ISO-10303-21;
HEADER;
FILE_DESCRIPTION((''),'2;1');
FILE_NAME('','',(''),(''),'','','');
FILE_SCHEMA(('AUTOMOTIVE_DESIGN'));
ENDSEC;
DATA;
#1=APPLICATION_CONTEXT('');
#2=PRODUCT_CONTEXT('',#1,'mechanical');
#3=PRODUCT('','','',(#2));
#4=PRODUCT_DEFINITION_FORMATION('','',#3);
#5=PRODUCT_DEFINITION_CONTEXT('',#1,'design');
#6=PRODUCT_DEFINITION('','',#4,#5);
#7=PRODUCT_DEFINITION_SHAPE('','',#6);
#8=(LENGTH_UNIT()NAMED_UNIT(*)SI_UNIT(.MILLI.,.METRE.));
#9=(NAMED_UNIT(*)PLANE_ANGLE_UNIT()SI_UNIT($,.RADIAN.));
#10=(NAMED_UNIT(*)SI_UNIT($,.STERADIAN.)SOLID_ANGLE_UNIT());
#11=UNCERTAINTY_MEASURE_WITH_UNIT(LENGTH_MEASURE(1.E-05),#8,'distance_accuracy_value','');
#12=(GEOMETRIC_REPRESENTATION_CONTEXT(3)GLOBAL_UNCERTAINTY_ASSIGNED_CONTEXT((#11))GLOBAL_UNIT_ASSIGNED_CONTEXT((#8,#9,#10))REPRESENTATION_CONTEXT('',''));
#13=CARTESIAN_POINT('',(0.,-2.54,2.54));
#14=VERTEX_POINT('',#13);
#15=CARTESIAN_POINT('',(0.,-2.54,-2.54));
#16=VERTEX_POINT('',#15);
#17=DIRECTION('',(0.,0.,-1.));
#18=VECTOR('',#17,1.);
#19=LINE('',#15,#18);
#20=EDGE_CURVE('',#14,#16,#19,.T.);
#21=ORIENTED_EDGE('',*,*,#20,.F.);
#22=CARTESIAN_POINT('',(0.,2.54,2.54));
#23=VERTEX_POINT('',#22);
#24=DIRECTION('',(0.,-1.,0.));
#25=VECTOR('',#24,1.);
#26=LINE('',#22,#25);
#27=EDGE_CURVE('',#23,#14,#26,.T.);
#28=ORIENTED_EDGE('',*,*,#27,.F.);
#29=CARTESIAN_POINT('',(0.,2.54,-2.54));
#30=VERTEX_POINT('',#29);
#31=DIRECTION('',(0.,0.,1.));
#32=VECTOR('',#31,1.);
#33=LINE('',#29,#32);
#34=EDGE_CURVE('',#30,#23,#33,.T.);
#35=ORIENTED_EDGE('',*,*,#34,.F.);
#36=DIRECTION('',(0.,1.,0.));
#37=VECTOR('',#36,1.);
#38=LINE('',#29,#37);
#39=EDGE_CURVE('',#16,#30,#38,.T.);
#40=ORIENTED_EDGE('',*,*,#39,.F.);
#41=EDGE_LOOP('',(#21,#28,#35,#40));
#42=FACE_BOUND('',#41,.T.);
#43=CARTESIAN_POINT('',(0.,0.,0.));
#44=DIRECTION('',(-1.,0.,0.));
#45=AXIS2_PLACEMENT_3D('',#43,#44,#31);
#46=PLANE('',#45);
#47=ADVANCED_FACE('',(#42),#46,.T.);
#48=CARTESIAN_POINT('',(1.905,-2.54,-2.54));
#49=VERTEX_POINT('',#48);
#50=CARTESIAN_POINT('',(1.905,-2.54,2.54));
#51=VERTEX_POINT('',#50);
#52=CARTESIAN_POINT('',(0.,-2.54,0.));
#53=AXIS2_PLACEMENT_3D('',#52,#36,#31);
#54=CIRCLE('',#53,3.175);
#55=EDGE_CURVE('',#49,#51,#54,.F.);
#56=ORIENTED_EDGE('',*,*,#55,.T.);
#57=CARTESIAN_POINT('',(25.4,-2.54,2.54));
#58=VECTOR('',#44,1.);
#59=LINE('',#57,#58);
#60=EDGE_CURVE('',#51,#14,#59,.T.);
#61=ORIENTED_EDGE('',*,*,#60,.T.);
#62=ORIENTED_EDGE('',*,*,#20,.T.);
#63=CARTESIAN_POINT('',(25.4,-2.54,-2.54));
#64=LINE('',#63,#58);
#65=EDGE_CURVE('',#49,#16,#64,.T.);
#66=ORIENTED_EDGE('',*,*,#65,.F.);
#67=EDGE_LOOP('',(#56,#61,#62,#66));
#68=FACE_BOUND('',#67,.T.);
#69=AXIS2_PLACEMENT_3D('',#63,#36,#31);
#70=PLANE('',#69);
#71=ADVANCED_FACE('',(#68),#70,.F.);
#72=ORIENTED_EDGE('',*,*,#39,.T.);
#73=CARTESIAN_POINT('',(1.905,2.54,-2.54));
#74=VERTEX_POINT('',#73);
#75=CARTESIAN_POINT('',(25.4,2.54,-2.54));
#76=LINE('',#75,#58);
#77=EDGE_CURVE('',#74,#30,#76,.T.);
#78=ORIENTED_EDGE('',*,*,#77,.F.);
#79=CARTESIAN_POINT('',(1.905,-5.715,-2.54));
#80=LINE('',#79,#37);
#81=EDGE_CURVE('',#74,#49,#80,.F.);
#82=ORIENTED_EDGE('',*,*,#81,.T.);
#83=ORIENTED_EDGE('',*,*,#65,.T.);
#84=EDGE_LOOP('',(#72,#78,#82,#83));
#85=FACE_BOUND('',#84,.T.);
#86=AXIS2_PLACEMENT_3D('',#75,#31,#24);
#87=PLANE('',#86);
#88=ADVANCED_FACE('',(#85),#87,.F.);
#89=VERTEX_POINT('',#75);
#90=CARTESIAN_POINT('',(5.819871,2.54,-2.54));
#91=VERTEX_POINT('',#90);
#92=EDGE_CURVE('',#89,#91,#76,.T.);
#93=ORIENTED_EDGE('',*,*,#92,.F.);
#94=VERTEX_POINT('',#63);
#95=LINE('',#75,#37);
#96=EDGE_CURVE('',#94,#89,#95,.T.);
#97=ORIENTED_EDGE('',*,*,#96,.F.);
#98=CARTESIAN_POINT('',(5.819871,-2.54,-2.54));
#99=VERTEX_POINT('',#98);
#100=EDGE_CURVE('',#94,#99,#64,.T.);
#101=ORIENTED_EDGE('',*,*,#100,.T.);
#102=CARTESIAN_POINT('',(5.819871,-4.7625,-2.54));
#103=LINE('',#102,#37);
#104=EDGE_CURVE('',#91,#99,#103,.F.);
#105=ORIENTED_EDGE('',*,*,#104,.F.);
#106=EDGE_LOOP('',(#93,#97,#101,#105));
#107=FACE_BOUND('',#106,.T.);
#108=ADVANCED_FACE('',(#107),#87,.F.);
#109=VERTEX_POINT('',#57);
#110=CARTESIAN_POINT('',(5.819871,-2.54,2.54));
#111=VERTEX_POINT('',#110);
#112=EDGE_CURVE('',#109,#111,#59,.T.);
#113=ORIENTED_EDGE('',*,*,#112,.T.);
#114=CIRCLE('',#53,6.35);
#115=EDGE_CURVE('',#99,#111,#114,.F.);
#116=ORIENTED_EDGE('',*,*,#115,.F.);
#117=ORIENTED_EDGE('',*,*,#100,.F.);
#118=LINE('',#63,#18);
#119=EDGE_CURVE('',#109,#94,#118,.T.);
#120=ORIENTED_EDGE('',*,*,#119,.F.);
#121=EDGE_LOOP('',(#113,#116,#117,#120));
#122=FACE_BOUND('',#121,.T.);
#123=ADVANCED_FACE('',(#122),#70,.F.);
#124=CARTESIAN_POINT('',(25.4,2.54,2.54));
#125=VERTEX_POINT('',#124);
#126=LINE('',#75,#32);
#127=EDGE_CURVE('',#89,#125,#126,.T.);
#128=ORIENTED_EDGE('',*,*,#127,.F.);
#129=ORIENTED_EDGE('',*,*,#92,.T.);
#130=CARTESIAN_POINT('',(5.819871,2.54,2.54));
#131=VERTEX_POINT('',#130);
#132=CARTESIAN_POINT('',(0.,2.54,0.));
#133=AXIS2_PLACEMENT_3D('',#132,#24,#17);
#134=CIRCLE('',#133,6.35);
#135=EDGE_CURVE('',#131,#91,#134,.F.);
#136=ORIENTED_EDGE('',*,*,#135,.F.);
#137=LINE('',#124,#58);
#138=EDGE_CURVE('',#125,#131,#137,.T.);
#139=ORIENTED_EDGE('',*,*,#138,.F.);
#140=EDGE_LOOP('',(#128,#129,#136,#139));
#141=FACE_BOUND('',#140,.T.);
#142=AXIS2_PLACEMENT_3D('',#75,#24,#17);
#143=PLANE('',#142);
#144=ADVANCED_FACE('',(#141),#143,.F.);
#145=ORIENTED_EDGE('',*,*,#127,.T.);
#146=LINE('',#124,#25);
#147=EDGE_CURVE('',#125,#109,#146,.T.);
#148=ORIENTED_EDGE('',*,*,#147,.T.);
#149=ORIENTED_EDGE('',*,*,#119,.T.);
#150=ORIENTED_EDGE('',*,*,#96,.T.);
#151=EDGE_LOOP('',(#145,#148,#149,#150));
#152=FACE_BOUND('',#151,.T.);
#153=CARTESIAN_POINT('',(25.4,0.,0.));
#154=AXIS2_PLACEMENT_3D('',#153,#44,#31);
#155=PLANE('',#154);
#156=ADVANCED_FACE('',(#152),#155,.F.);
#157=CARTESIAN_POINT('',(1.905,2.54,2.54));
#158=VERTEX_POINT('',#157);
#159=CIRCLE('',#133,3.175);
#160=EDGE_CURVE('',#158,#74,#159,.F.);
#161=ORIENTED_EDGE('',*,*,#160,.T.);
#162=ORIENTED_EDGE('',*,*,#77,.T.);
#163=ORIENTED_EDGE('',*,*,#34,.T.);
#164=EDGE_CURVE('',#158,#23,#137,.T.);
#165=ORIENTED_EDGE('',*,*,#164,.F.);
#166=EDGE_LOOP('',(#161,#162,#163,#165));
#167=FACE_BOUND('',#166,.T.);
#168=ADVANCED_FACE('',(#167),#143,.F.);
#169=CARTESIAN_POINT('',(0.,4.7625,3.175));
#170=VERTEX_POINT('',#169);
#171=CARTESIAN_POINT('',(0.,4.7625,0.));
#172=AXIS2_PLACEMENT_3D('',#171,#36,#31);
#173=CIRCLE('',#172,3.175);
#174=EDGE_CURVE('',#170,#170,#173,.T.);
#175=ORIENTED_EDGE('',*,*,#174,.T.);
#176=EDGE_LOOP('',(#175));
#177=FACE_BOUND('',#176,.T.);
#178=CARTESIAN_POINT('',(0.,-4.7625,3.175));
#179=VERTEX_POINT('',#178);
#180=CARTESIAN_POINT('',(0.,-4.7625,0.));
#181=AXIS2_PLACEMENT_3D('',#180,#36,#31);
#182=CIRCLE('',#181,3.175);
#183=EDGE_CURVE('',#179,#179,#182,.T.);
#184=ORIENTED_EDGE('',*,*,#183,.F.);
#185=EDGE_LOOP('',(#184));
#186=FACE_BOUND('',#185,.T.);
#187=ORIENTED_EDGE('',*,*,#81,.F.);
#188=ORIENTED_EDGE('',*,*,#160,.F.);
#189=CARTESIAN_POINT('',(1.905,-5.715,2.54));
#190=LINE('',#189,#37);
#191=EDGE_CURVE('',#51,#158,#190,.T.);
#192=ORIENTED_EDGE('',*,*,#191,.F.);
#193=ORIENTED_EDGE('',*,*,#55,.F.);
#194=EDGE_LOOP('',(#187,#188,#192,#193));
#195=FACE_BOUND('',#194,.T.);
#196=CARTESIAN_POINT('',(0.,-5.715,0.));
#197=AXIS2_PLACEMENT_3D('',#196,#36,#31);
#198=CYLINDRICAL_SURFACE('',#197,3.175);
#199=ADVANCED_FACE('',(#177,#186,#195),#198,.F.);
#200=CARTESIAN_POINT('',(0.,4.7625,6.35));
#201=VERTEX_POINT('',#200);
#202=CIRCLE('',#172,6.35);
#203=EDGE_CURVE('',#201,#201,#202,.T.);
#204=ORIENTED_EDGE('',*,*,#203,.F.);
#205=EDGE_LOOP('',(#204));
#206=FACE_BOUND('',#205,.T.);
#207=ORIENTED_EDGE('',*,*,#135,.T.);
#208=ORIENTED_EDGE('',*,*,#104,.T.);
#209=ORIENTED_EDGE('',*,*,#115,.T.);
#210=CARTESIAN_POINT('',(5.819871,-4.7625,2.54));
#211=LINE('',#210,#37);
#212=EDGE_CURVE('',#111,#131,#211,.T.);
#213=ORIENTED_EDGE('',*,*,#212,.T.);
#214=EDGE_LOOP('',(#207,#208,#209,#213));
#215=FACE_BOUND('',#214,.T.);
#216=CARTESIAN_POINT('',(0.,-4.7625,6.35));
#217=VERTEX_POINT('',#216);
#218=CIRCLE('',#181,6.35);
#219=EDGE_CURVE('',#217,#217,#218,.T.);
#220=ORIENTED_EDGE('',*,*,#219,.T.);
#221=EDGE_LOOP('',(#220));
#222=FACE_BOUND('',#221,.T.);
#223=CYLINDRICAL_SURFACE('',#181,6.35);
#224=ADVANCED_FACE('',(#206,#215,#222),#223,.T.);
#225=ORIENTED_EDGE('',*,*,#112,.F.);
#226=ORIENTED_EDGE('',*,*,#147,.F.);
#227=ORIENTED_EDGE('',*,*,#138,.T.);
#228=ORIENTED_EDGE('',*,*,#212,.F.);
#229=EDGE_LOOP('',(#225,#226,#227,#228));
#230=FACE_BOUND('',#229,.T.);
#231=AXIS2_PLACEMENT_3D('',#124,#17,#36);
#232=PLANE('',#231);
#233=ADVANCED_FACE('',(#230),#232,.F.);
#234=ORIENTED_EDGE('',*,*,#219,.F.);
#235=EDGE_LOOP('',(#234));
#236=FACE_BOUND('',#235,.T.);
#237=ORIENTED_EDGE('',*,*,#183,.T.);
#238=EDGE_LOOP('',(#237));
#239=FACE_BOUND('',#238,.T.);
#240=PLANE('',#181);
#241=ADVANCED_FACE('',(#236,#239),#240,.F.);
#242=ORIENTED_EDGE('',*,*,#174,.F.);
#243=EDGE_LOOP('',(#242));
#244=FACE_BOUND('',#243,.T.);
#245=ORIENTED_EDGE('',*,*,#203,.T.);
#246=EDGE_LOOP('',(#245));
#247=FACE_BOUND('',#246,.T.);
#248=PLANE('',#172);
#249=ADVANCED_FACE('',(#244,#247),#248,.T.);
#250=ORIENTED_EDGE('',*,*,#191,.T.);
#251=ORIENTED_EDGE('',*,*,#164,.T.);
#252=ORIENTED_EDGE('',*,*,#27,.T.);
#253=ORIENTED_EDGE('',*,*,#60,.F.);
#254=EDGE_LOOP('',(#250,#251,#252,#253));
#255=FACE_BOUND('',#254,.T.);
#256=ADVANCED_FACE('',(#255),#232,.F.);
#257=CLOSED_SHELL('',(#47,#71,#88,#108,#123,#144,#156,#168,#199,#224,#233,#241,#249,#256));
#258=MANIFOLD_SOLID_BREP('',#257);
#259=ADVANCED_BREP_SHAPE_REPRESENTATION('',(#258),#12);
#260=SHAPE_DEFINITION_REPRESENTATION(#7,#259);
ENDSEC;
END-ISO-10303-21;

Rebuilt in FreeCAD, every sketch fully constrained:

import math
import FreeCAD as App
import Part
import Sketcher
Q = App.Units.Quantity

doc = App.newDocument("Part")
body = doc.addObject("PartDesign::Body", "Body")

sketch1 = body.newObject("Sketcher::SketchObject", "Sketch")
sketch1.AttachmentSupport = (doc.getObject("XY_Plane"), [""])
sketch1.MapMode = "FlatFace"
sketch1.addGeometry([
    Part.LineSegment(App.Vector(0, 5.715, 0), App.Vector(0, -5.715, 0)),
    Part.ArcOfCircle(Part.Circle(App.Vector(0, 0, 0), App.Vector(0, 0, 1), 5.715), math.radians(-90), math.radians(90)),
], False)
sketch1.addConstraint([
    Sketcher.Constraint("Coincident", 0, 1, 1, 2),
    Sketcher.Constraint("Coincident", 1, 1, 0, 2),
    Sketcher.Constraint("Vertical", 0),
    Sketcher.Constraint("Coincident", 1, 3, -1, 1),
    Sketcher.Constraint("PointOnObject", 0, 1, -2),
    Sketcher.Constraint("Radius", 1, Q("0.225 in")),
])
revolution = body.newObject("PartDesign::Revolution", "Revolution")
revolution.Profile = sketch1
revolution.ReferenceAxis = (sketch1, ["V_Axis"])
revolution.Angle = 360

sketch2 = body.newObject("Sketcher::SketchObject", "Sketch001")
sketch2.AttachmentSupport = (doc.getObject("XZ_Plane"), [""])
sketch2.MapMode = "FlatFace"
sketch2.addGeometry(Part.Circle(App.Vector(0, 0, 0), App.Vector(0, 0, 1), 3.175), False)
sketch2.addConstraint([
    Sketcher.Constraint("Coincident", 0, 3, -1, 1),
    Sketcher.Constraint("Diameter", 0, Q("0.25 in")),
])
pocket1 = body.newObject("PartDesign::Pocket", "Pocket")
pocket1.Profile = sketch2
pocket1.Type = "ThroughAll"
pocket1.Midplane = True

sketch3 = body.newObject("Sketcher::SketchObject", "Sketch002")
sketch3.AttachmentSupport = (doc.getObject("XZ_Plane"), [""])
sketch3.MapMode = "FlatFace"
sketch3.addGeometry([
    Part.Circle(App.Vector(0, 0, 0), App.Vector(0, 0, 1), 6.35),
    Part.Circle(App.Vector(0, 0, 0), App.Vector(0, 0, 1), 3.175),
], False)
sketch3.addConstraint([
    Sketcher.Constraint("Coincident", 0, 3, -1, 1),
    Sketcher.Constraint("Coincident", 1, 3, -1, 1),
    Sketcher.Constraint("Diameter", 0, Q("0.5 in")),
    Sketcher.Constraint("Diameter", 1, Q("0.25 in")),
])
pad1 = body.newObject("PartDesign::Pad", "Pad")
pad1.Profile = sketch3
pad1.Type = "TwoLengths"
pad1.Length = Q("0.1875 in")
pad1.Length2 = Q("0.1875 in")
pad1.Reversed = True

sketch4 = body.newObject("Sketcher::SketchObject", "Sketch003")
sketch4.AttachmentSupport = (doc.getObject("YZ_Plane"), [""])
sketch4.MapMode = "FlatFace"
sketch4.addGeometry([
    Part.LineSegment(App.Vector(2.54, 2.54, 0), App.Vector(-2.54, 2.54, 0)),
    Part.LineSegment(App.Vector(-2.54, 2.54, 0), App.Vector(-2.54, -2.54, 0)),
    Part.LineSegment(App.Vector(-2.54, -2.54, 0), App.Vector(2.54, -2.54, 0)),
    Part.LineSegment(App.Vector(2.54, -2.54, 0), App.Vector(2.54, 2.54, 0)),
], False)
sketch4.addConstraint([
    Sketcher.Constraint("Coincident", 0, 2, 1, 1),
    Sketcher.Constraint("Coincident", 1, 2, 2, 1),
    Sketcher.Constraint("Coincident", 2, 2, 3, 1),
    Sketcher.Constraint("Coincident", 3, 2, 0, 1),
    Sketcher.Constraint("Horizontal", 0),
    Sketcher.Constraint("Vertical", 1),
    Sketcher.Constraint("Horizontal", 2),
    Sketcher.Constraint("Vertical", 3),
    Sketcher.Constraint("Symmetric", 0, 2, 2, 2, -1, 1),
    Sketcher.Constraint("Equal", 2, 1),
    Sketcher.Constraint("DistanceX", 0, 2, 0, 1, Q("0.2 in")),
])
pad2 = body.newObject("PartDesign::Pad", "Pad001")
pad2.Profile = sketch4
pad2.Length = Q("1 in")

doc.recompute()
